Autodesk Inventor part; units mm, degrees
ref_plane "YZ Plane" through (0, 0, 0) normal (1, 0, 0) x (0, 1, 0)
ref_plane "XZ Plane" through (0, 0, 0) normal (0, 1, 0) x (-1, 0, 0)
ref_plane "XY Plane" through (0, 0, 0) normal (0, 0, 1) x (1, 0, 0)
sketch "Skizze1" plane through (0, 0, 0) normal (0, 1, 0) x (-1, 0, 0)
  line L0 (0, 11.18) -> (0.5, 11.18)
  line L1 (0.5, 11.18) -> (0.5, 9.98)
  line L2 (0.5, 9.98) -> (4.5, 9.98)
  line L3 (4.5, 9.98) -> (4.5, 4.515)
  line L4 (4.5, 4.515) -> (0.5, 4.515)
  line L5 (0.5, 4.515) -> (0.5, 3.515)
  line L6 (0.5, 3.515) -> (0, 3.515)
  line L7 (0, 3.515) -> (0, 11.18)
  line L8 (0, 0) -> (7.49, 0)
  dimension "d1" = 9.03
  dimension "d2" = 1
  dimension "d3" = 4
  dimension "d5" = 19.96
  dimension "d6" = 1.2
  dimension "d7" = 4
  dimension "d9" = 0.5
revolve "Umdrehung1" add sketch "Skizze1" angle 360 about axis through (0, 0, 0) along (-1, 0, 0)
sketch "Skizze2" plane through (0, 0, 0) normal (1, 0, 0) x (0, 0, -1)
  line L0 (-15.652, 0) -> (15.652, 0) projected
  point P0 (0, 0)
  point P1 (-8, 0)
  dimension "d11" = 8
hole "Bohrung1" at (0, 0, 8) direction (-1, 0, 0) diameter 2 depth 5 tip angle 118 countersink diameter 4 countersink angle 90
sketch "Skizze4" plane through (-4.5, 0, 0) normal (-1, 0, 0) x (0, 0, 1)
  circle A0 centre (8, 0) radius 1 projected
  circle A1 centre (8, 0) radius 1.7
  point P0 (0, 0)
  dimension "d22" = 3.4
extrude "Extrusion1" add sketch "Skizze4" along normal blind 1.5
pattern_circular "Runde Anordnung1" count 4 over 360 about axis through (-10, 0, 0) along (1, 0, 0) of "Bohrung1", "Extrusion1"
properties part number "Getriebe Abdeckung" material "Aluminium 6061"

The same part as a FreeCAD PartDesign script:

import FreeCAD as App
import Part
import Sketcher
from FreeCAD import Vector
Q = App.Units.Quantity


def add_polygon(sketch, points):
    """Adds a closed chain of lines whose ends are joined by coincident constraints."""
    first, n = sketch.GeometryCount, len(points)
    for a, b in zip(points, points[1:] + points[:1]):
        sketch.addGeometry(Part.LineSegment(App.Vector(*a, 0), App.Vector(*b, 0)), False)
    for i in range(n):
        sketch.addConstraint(Sketcher.Constraint("Coincident", first + i, 2, first + (i + 1) % n, 1))

doc = App.newDocument("Part")
body = doc.addObject("PartDesign::Body", "Body")

# Sketch on XZ plane
sketch1 = body.newObject("Sketcher::SketchObject", "Sketch")
sketch1.AttachmentSupport = (doc.getObject("XZ_Plane"), [""])
sketch1.MapMode = "FlatFace"
add_polygon(sketch1, [(-0.5, 11.18), (0, 11.18), (0, 3.515), (-0.5, 3.515), (-0.5, 4.515), (-4.5, 4.515), (-4.5, 9.98), (-0.5, 9.98)])  # lines 0-7
sketch1.addConstraint([
    Sketcher.Constraint("Horizontal", 0),
    Sketcher.Constraint("Vertical", 1),
    Sketcher.Constraint("Horizontal", 2),
    Sketcher.Constraint("Vertical", 3),
    Sketcher.Constraint("Horizontal", 4),
    Sketcher.Constraint("Vertical", 5),
    Sketcher.Constraint("Horizontal", 6),
    Sketcher.Constraint("Vertical", 7),
    Sketcher.Constraint("PointOnObject", 0, 2, -2),
    Sketcher.Constraint("Vertical", 3, 2, 6, 2),
    Sketcher.Constraint("DistanceX", 4, 2, 4, 1, Q("4 mm")),
    Sketcher.Constraint("DistanceY", 3, 1, 3, 2, Q("1 mm")),
    Sketcher.Constraint("DistanceX", 0, 1, 0, 2, Q("0.5 mm")),
    Sketcher.Constraint("DistanceY", 7, 1, 7, 2, Q("1.2 mm")),
    Sketcher.Constraint("DistanceY", 1, 2, 1, 1, Q("7.665 mm")),
    Sketcher.Constraint("DistanceY", -1, 1, 0, 2, Q("11.18 mm")),
])
revolution = body.newObject("PartDesign::Revolution", "Revolution")
revolution.Profile = sketch1
revolution.ReferenceAxis = (sketch1, ["H_Axis"])
revolution.Angle = 360

# Sketch on YZ plane
sketch2 = body.newObject("Sketcher::SketchObject", "Sketch001")
sketch2.AttachmentSupport = (doc.getObject("YZ_Plane"), [""])
sketch2.MapMode = "FlatFace"
sketch2.addGeometry(Part.Circle(Vector(0, 8, 0), Vector(0, 0, 1), 1), False)
sketch2.addConstraint([
    Sketcher.Constraint("PointOnObject", 0, 3, -2),
    Sketcher.Constraint("Diameter", 0, Q("2 mm")),
    Sketcher.Constraint("DistanceY", -1, 1, 0, 3, Q("8 mm")),
])
doc.recompute()
hole = body.newObject("PartDesign::Hole", "Hole")
hole.Profile = sketch2
hole.ThreadType = "None"
hole.Diameter = 2
hole.DepthType = "Dimension"
hole.Depth = 5
hole.DrillPoint = "Angled"
hole.DrillPointAngle = 118
hole.HoleCutType = "Countersink"
hole.HoleCutDiameter = 4
hole.HoleCutCountersinkAngle = 90

# Sketch on YZ plane
sketch3 = body.newObject("Sketcher::SketchObject", "Sketch002")
sketch3.AttachmentSupport = (doc.getObject("YZ_Plane"), [""])
sketch3.MapMode = "FlatFace"
sketch3.AttachmentOffset = App.Placement(Vector(0, 0, -4.5), App.Rotation())
sketch3.addGeometry([
    Part.Circle(Vector(0, 8, 0), Vector(0, 0, 1), 1.7),
    Part.Circle(Vector(0, 8, 0), Vector(0, 0, 1), 1),
], False)
sketch3.addConstraint([
    Sketcher.Constraint("Coincident", 1, 3, 0, 3),
    Sketcher.Constraint("PointOnObject", 0, 3, -2),
    Sketcher.Constraint("Diameter", 0, Q("3.4 mm")),
    Sketcher.Constraint("Diameter", 1, Q("2 mm")),
    Sketcher.Constraint("DistanceY", -1, 1, 0, 3, Q("8 mm")),
])
pad1 = body.newObject("PartDesign::Pad", "Pad")
pad1.Profile = sketch3
pad1.Length = 1.5
pad1.Reversed = True
doc.recompute()

polarpattern = body.newObject("PartDesign::PolarPattern", "PolarPattern")
polarpattern.Originals = [hole, pad1]
polarpattern.Axis = (doc.getObject("X_Axis"), [""])
polarpattern.Angle = 360
polarpattern.Occurrences = 4
body.Tip = polarpattern

doc.recompute()
